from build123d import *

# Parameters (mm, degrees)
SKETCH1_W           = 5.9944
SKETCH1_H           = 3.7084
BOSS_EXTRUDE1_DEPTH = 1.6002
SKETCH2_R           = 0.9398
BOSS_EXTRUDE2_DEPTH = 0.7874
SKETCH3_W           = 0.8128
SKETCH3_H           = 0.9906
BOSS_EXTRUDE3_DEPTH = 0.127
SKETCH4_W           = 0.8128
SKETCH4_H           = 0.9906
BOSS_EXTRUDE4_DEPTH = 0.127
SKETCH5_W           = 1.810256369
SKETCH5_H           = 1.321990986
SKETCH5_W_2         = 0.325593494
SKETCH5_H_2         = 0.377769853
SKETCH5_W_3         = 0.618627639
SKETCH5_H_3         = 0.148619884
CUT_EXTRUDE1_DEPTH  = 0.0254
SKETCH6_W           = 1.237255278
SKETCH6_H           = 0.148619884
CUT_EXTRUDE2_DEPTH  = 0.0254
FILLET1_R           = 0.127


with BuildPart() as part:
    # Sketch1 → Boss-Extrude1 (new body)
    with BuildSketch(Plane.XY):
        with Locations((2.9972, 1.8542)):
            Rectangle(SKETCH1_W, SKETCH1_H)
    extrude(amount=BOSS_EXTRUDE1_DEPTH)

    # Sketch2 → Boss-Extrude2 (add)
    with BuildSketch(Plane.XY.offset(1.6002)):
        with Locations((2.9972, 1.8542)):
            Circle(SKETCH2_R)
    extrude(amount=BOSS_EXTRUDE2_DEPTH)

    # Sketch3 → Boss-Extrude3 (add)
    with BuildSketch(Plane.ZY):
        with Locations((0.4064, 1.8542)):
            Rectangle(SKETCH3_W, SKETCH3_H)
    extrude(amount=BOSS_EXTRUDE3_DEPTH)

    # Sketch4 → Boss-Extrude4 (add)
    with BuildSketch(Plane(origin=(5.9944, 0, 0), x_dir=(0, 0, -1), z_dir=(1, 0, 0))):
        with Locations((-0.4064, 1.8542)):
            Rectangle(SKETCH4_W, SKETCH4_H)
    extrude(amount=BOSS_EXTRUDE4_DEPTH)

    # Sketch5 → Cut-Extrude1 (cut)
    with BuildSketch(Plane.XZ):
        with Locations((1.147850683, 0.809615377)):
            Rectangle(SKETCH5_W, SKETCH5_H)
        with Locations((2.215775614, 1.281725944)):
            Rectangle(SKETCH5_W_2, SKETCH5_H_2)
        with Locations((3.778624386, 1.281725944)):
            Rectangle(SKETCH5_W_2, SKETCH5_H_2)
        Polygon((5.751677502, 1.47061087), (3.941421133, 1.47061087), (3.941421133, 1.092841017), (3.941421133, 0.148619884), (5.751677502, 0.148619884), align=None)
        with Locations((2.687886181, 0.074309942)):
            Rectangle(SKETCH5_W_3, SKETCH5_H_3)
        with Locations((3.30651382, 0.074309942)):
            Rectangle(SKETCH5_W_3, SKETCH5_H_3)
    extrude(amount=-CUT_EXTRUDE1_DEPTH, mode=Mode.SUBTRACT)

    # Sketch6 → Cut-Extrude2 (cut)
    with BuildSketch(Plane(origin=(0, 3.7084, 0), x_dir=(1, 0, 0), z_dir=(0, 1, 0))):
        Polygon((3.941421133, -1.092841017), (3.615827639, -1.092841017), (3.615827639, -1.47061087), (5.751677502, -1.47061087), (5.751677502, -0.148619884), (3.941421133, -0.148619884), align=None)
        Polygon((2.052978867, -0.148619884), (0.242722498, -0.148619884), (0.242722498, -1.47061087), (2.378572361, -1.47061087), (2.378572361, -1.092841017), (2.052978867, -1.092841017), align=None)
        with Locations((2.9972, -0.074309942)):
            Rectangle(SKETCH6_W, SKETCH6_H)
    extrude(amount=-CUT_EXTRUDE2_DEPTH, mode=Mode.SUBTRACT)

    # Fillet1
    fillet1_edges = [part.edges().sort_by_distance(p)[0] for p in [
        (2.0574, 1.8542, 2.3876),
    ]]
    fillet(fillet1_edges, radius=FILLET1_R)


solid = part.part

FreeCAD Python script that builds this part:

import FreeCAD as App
import Part
import Sketcher
from FreeCAD import Vector
Q = App.Units.Quantity


def edges_at(feature, points):
    """Names of the edges that pass closest to the given points."""
    edges = feature.Shape.Edges
    near = lambda p: min(range(len(edges)), key=lambda i: edges[i].distToShape(Part.Vertex(*p))[0])
    return sorted({f"Edge{near(p) + 1}" for p in points})

doc = App.newDocument("Part")
params = doc.addObject("Spreadsheet::Sheet", "Params")
for row, (alias, value) in enumerate([
    ("sketch1_width", "0.236 in"),
    ("sketch1_height", "0.146 in"),
    ("pad1_length", "0.063 in"),
    ("sketch2_diameter", "0.074 in"),
    ("pad2_length", "0.031 in"),
    ("sketch3_width", "0.039 in"),
    ("sketch3_height", "0.032 in"),
    ("pad3_length", "0.005 in"),
    ("sketch4_width", "0.039 in"),
    ("sketch4_height", "0.032 in"),
    ("pad4_length", "0.005 in"),
    ("pocket1_length", "0.001 in"),
    ("pocket2_length", "0.001 in"),
    ("fillet_radius", "0.005 in"),
], start=1):
    params.set(f"A{row}", alias)
    params.set(f"B{row}", "=" + value)
    params.setAlias(f"B{row}", alias)

body = doc.addObject("PartDesign::Body", "Body")

# Sketch on XY plane
sketch1 = body.newObject("Sketcher::SketchObject", "Sketch")
sketch1.AttachmentSupport = (doc.getObject("XY_Plane"), [""])
sketch1.MapMode = "FlatFace"
sketch1.addGeometry(Part.LineSegment(Vector(0, 3.7084, 0), Vector(0, 0, 0)), False)
sketch1.addGeometry(Part.LineSegment(Vector(0, 0, 0), Vector(5.9944, 0, 0)), False)
sketch1.addGeometry(Part.LineSegment(Vector(5.9944, 0, 0), Vector(5.9944, 3.7084, 0)), False)
sketch1.addGeometry(Part.LineSegment(Vector(5.9944, 3.7084, 0), Vector(0, 3.7084, 0)), False)
sketch1.addConstraint(Sketcher.Constraint("Coincident", 0, 2, 1, 1))
sketch1.addConstraint(Sketcher.Constraint("Coincident", 1, 2, 2, 1))
sketch1.addConstraint(Sketcher.Constraint("Coincident", 2, 2, 3, 1))
sketch1.addConstraint(Sketcher.Constraint("Coincident", 3, 2, 0, 1))
sketch1.addConstraint(Sketcher.Constraint("Vertical", 0))
sketch1.addConstraint(Sketcher.Constraint("Horizontal", 1))
sketch1.addConstraint(Sketcher.Constraint("Vertical", 2))
sketch1.addConstraint(Sketcher.Constraint("Horizontal", 3))
sketch1.addConstraint(Sketcher.Constraint("Coincident", 0, 2, -1, 1))
sketch1.addConstraint(Sketcher.Constraint("DistanceX", 1, 1, 1, 2, Q("0.236 in")))
sketch1.addConstraint(Sketcher.Constraint("DistanceY", 0, 2, 0, 1, Q("0.146 in")))
sketch1.setExpression("Constraints[9]", "Params.sketch1_width")
sketch1.setExpression("Constraints[10]", "Params.sketch1_height")
pad1 = body.newObject("PartDesign::Pad", "Pad")
pad1.Profile = sketch1
pad1.setExpression("Length", "Params.pad1_length")

# Sketch on XY plane
sketch2 = body.newObject("Sketcher::SketchObject", "Sketch001")
sketch2.AttachmentSupport = (doc.getObject("XY_Plane"), [""])
sketch2.MapMode = "FlatFace"
sketch2.AttachmentOffset = App.Placement(Vector(0, 0, 0.063 * 25.4), App.Rotation())
sketch2.addGeometry(Part.Circle(Vector(2.9972, 1.8542, 0), Vector(0, 0, 1), 0.9398), False)
sketch2.addConstraint(Sketcher.Constraint("Diameter", 0, Q("0.074 in")))
sketch2.addConstraint(Sketcher.Constraint("DistanceX", -1, 1, 0, 3, Q("0.118 in")))
sketch2.addConstraint(Sketcher.Constraint("DistanceY", -1, 1, 0, 3, Q("0.073 in")))
sketch2.setExpression("Constraints[0]", "Params.sketch2_diameter")
pad2 = body.newObject("PartDesign::Pad", "Pad001")
pad2.Profile = sketch2
pad2.setExpression("Length", "Params.pad2_length")

# Sketch on YZ plane
sketch3 = body.newObject("Sketcher::SketchObject", "Sketch002")
sketch3.AttachmentSupport = (doc.getObject("YZ_Plane"), [""])
sketch3.MapMode = "FlatFace"
sketch3.addGeometry(Part.LineSegment(Vector(2.3495, 0, 0), Vector(1.3589, 0, 0)), False)
sketch3.addGeometry(Part.LineSegment(Vector(1.3589, 0, 0), Vector(1.3589, 0.8128, 0)), False)
sketch3.addGeometry(Part.LineSegment(Vector(1.3589, 0.8128, 0), Vector(2.3495, 0.8128, 0)), False)
sketch3.addGeometry(Part.LineSegment(Vector(2.3495, 0.8128, 0), Vector(2.3495, 0, 0)), False)
sketch3.addConstraint(Sketcher.Constraint("Coincident", 0, 2, 1, 1))
sketch3.addConstraint(Sketcher.Constraint("Coincident", 1, 2, 2, 1))
sketch3.addConstraint(Sketcher.Constraint("Coincident", 2, 2, 3, 1))
sketch3.addConstraint(Sketcher.Constraint("Coincident", 3, 2, 0, 1))
sketch3.addConstraint(Sketcher.Constraint("Horizontal", 0))
sketch3.addConstraint(Sketcher.Constraint("Vertical", 1))
sketch3.addConstraint(Sketcher.Constraint("Horizontal", 2))
sketch3.addConstraint(Sketcher.Constraint("Vertical", 3))
sketch3.addConstraint(Sketcher.Constraint("PointOnObject", 0, 2, -1))
sketch3.addConstraint(Sketcher.Constraint("DistanceX", 0, 2, 0, 1, Q("0.039 in")))
sketch3.addConstraint(Sketcher.Constraint("DistanceY", 1, 1, 1, 2, Q("0.032 in")))
sketch3.addConstraint(Sketcher.Constraint("DistanceX", -1, 1, 0, 2, Q("0.0535 in")))
sketch3.setExpression("Constraints[9]", "Params.sketch3_width")
sketch3.setExpression("Constraints[10]", "Params.sketch3_height")
pad3 = body.newObject("PartDesign::Pad", "Pad002")
pad3.Profile = sketch3
pad3.setExpression("Length", "Params.pad3_length")
pad3.Reversed = True

# Sketch on YZ plane
sketch4 = body.newObject("Sketcher::SketchObject", "Sketch003")
sketch4.AttachmentSupport = (doc.getObject("YZ_Plane"), [""])
sketch4.MapMode = "FlatFace"
sketch4.AttachmentOffset = App.Placement(Vector(0, 0, 0.236 * 25.4), App.Rotation())
sketch4.addGeometry(Part.LineSegment(Vector(2.3495, 0.8128, 0), Vector(1.3589, 0.8128, 0)), False)
sketch4.addGeometry(Part.LineSegment(Vector(1.3589, 0.8128, 0), Vector(1.3589, 0, 0)), False)
sketch4.addGeometry(Part.LineSegment(Vector(1.3589, 0, 0), Vector(2.3495, 0, 0)), False)
sketch4.addGeometry(Part.LineSegment(Vector(2.3495, 0, 0), Vector(2.3495, 0.8128, 0)), False)
sketch4.addConstraint(Sketcher.Constraint("Coincident", 0, 2, 1, 1))
sketch4.addConstraint(Sketcher.Constraint("Coincident", 1, 2, 2, 1))
sketch4.addConstraint(Sketcher.Constraint("Coincident", 2, 2, 3, 1))
sketch4.addConstraint(Sketcher.Constraint("Coincident", 3, 2, 0, 1))
sketch4.addConstraint(Sketcher.Constraint("Horizontal", 0))
sketch4.addConstraint(Sketcher.Constraint("Vertical", 1))
sketch4.addConstraint(Sketcher.Constraint("Horizontal", 2))
sketch4.addConstraint(Sketcher.Constraint("Vertical", 3))
sketch4.addConstraint(Sketcher.Constraint("PointOnObject", 1, 2, -1))
sketch4.addConstraint(Sketcher.Constraint("DistanceX", 0, 2, 0, 1, Q("0.039 in")))
sketch4.addConstraint(Sketcher.Constraint("DistanceY", 1, 2, 1, 1, Q("0.032 in")))
sketch4.addConstraint(Sketcher.Constraint("DistanceX", -1, 1, 0, 2, Q("0.0535 in")))
sketch4.setExpression("Constraints[9]", "Params.sketch4_width")
sketch4.setExpression("Constraints[10]", "Params.sketch4_height")
pad4 = body.newObject("PartDesign::Pad", "Pad003")
pad4.Profile = sketch4
pad4.setExpression("Length", "Params.pad4_length")

# Sketch on XZ plane
sketch5 = body.newObject("Sketcher::SketchObject", "Sketch004")
sketch5.AttachmentSupport = (doc.getObject("XZ_Plane"), [""])
sketch5.MapMode = "FlatFace"
sketch5.addGeometry(Part.LineSegment(Vector(0.242722, 1.470611, 0), Vector(0.242722, 0.14862, 0)), False)
sketch5.addGeometry(Part.LineSegment(Vector(0.242722, 0.14862, 0), Vector(2.052979, 0.14862, 0)), False)
sketch5.addGeometry(Part.LineSegment(Vector(2.052979, 0.14862, 0), Vector(2.052979, 1.092841, 0)), False)
sketch5.addGeometry(Part.LineSegment(Vector(2.052979, 1.092841, 0), Vector(2.378572, 1.092841, 0)), False)
sketch5.addGeometry(Part.LineSegment(Vector(2.378572, 1.092841, 0), Vector(2.378572, 1.470611, 0)), False)
sketch5.addGeometry(Part.LineSegment(Vector(2.378572, 1.470611, 0), Vector(2.052979, 1.470611, 0)), False)
sketch5.addGeometry(Part.LineSegment(Vector(2.052979, 1.470611, 0), Vector(0.242722, 1.470611, 0)), False)
sketch5.addGeometry(Part.LineSegment(Vector(3.615828, 1.470611, 0), Vector(3.615828, 1.092841, 0)), False)
sketch5.addGeometry(Part.LineSegment(Vector(3.615828, 1.092841, 0), Vector(3.941421, 1.092841, 0)), False)
sketch5.addGeometry(Part.LineSegment(Vector(3.941421, 1.092841, 0), Vector(3.941421, 0.14862, 0)), False)
sketch5.addGeometry(Part.LineSegment(Vector(3.941421, 0.14862, 0), Vector(5.751678, 0.14862, 0)), False)
sketch5.addGeometry(Part.LineSegment(Vector(5.751678, 0.14862, 0), Vector(5.751678, 1.470611, 0)), False)
sketch5.addGeometry(Part.LineSegment(Vector(5.751678, 1.470611, 0), Vector(3.941421, 1.470611, 0)), False)
sketch5.addGeometry(Part.LineSegment(Vector(3.941421, 1.470611, 0), Vector(3.615828, 1.470611, 0)), False)
sketch5.addGeometry(Part.LineSegment(Vector(2.378572, 0.14862, 0), Vector(2.378572, 0, 0)), False)
sketch5.addGeometry(Part.LineSegment(Vector(2.378572, 0, 0), Vector(3.615828, 0, 0)), False)
sketch5.addGeometry(Part.LineSegment(Vector(3.615828, 0, 0), Vector(3.615828, 0.14862, 0)), False)
sketch5.addGeometry(Part.LineSegment(Vector(3.615828, 0.14862, 0), Vector(2.378572, 0.14862, 0)), False)
sketch5.addConstraint(Sketcher.Constraint("Coincident", 0, 2, 1, 1))
sketch5.addConstraint(Sketcher.Constraint("Coincident", 1, 2, 2, 1))
sketch5.addConstraint(Sketcher.Constraint("Coincident", 2, 2, 3, 1))
sketch5.addConstraint(Sketcher.Constraint("Coincident", 3, 2, 4, 1))
sketch5.addConstraint(Sketcher.Constraint("Coincident", 4, 2, 5, 1))
sketch5.addConstraint(Sketcher.Constraint("Coincident", 5, 2, 6, 1))
sketch5.addConstraint(Sketcher.Constraint("Coincident", 6, 2, 0, 1))
sketch5.addConstraint(Sketcher.Constraint("Coincident", 7, 2, 8, 1))
sketch5.addConstraint(Sketcher.Constraint("Coincident", 8, 2, 9, 1))
sketch5.addConstraint(Sketcher.Constraint("Coincident", 9, 2, 10, 1))
sketch5.addConstraint(Sketcher.Constraint("Coincident", 10, 2, 11, 1))
sketch5.addConstraint(Sketcher.Constraint("Coincident", 11, 2, 12, 1))
sketch5.addConstraint(Sketcher.Constraint("Coincident", 12, 2, 13, 1))
sketch5.addConstraint(Sketcher.Constraint("Coincident", 13, 2, 7, 1))
sketch5.addConstraint(Sketcher.Constraint("Coincident", 14, 2, 15, 1))
sketch5.addConstraint(Sketcher.Constraint("Coincident", 15, 2, 16, 1))
sketch5.addConstraint(Sketcher.Constraint("Coincident", 16, 2, 17, 1))
sketch5.addConstraint(Sketcher.Constraint("Coincident", 17, 2, 14, 1))
sketch5.addConstraint(Sketcher.Constraint("Vertical", 0))
sketch5.addConstraint(Sketcher.Constraint("Horizontal", 1))
sketch5.addConstraint(Sketcher.Constraint("Vertical", 2))
sketch5.addConstraint(Sketcher.Constraint("Horizontal", 3))
sketch5.addConstraint(Sketcher.Constraint("Vertical", 4))
sketch5.addConstraint(Sketcher.Constraint("Horizontal", 5))
sketch5.addConstraint(Sketcher.Constraint("Horizontal", 6))
sketch5.addConstraint(Sketcher.Constraint("Vertical", 7))
sketch5.addConstraint(Sketcher.Constraint("Horizontal", 8))
sketch5.addConstraint(Sketcher.Constraint("Vertical", 9))
sketch5.addConstraint(Sketcher.Constraint("Horizontal", 10))
sketch5.addConstraint(Sketcher.Constraint("Vertical", 11))
sketch5.addConstraint(Sketcher.Constraint("Horizontal", 12))
sketch5.addConstraint(Sketcher.Constraint("Horizontal", 13))
sketch5.addConstraint(Sketcher.Constraint("Vertical", 14))
sketch5.addConstraint(Sketcher.Constraint("Horizontal", 15))
sketch5.addConstraint(Sketcher.Constraint("Vertical", 16))
sketch5.addConstraint(Sketcher.Constraint("Horizontal", 17))
sketch5.addConstraint(Sketcher.Constraint("PointOnObject", 14, 2, -1))
sketch5.addConstraint(Sketcher.Constraint("Horizontal", 3, 2, 7, 2))
sketch5.addConstraint(Sketcher.Constraint("Horizontal", 1, 2, 9, 2))
sketch5.addConstraint(Sketcher.Constraint("Horizontal", 6, 2, 11, 2))
sketch5.addConstraint(Sketcher.Constraint("Horizontal", 10, 2, 16, 2))
sketch5.addConstraint(Sketcher.Constraint("Vertical", 2, 2, 5, 2))
sketch5.addConstraint(Sketcher.Constraint("Vertical", 9, 2, 12, 2))
sketch5.addConstraint(Sketcher.Constraint("Vertical", 4, 2, 14, 2))
sketch5.addConstraint(Sketcher.Constraint("Vertical", 13, 2, 15, 2))
sketch5.addConstraint(Sketcher.Constraint("Equal", 5, 8))
sketch5.addConstraint(Sketcher.Constraint("Equal", 6, 10))
sketch5.addConstraint(Sketcher.Constraint("DistanceY", 0, 2, 0, 1, Q("1.321991 mm")))
sketch5.addConstraint(Sketcher.Constraint("DistanceY", 2, 1, 2, 2, Q("0.944221 mm")))
sketch5.addConstraint(Sketcher.Constraint("DistanceY", 14, 2, 14, 1, Q("0.14862 mm")))
sketch5.addConstraint(Sketcher.Constraint("DistanceX", 1, 1, 1, 2, Q("1.810256 mm")))
sketch5.addConstraint(Sketcher.Constraint("DistanceX", 3, 1, 3, 2, Q("0.325593 mm")))
sketch5.addConstraint(Sketcher.Constraint("DistanceX", 15, 1, 15, 2, Q("1.237255 mm")))
sketch5.addConstraint(Sketcher.Constraint("DistanceX", -1, 1, 1, 2, Q("2.052979 mm")))
pocket1 = body.newObject("PartDesign::Pocket", "Pocket")
pocket1.Profile = sketch5
pocket1.setExpression("Length", "Params.pocket1_length")

# Sketch on XZ plane
sketch6 = body.newObject("Sketcher::SketchObject", "Sketch005")
sketch6.AttachmentSupport = (doc.getObject("XZ_Plane"), [""])
sketch6.MapMode = "FlatFace"
sketch6.AttachmentOffset = App.Placement(Vector(0, 0, -0.146 * 25.4), App.Rotation())
sketch6.addGeometry(Part.LineSegment(Vector(3.941421, 1.092841, 0), Vector(3.615828, 1.092841, 0)), False)
sketch6.addGeometry(Part.LineSegment(Vector(3.615828, 1.092841, 0), Vector(3.615828, 1.470611, 0)), False)
sketch6.addGeometry(Part.LineSegment(Vector(3.615828, 1.470611, 0), Vector(5.751678, 1.470611, 0)), False)
sketch6.addGeometry(Part.LineSegment(Vector(5.751678, 1.470611, 0), Vector(5.751678, 0.14862, 0)), False)
sketch6.addGeometry(Part.LineSegment(Vector(5.751678, 0.14862, 0), Vector(3.941421, 0.14862, 0)), False)
sketch6.addGeometry(Part.LineSegment(Vector(3.941421, 0.14862, 0), Vector(3.941421, 1.092841, 0)), False)
sketch6.addGeometry(Part.LineSegment(Vector(2.052979, 0.14862, 0), Vector(0.242722, 0.14862, 0)), False)
sketch6.addGeometry(Part.LineSegment(Vector(0.242722, 0.14862, 0), Vector(0.242722, 1.470611, 0)), False)
sketch6.addGeometry(Part.LineSegment(Vector(0.242722, 1.470611, 0), Vector(2.378572, 1.470611, 0)), False)
sketch6.addGeometry(Part.LineSegment(Vector(2.378572, 1.470611, 0), Vector(2.378572, 1.092841, 0)), False)
sketch6.addGeometry(Part.LineSegment(Vector(2.378572, 1.092841, 0), Vector(2.052979, 1.092841, 0)), False)
sketch6.addGeometry(Part.LineSegment(Vector(2.052979, 1.092841, 0), Vector(2.052979, 0.14862, 0)), False)
sketch6.addGeometry(Part.LineSegment(Vector(2.378572, 0, 0), Vector(2.378572, 0.14862, 0)), False)
sketch6.addGeometry(Part.LineSegment(Vector(2.378572, 0.14862, 0), Vector(3.615828, 0.14862, 0)), False)
sketch6.addGeometry(Part.LineSegment(Vector(3.615828, 0.14862, 0), Vector(3.615828, 0, 0)), False)
sketch6.addGeometry(Part.LineSegment(Vector(3.615828, 0, 0), Vector(2.378572, 0, 0)), False)
sketch6.addConstraint(Sketcher.Constraint("Coincident", 0, 2, 1, 1))
sketch6.addConstraint(Sketcher.Constraint("Coincident", 1, 2, 2, 1))
sketch6.addConstraint(Sketcher.Constraint("Coincident", 2, 2, 3, 1))
sketch6.addConstraint(Sketcher.Constraint("Coincident", 3, 2, 4, 1))
sketch6.addConstraint(Sketcher.Constraint("Coincident", 4, 2, 5, 1))
sketch6.addConstraint(Sketcher.Constraint("Coincident", 5, 2, 0, 1))
sketch6.addConstraint(Sketcher.Constraint("Coincident", 6, 2, 7, 1))
sketch6.addConstraint(Sketcher.Constraint("Coincident", 7, 2, 8, 1))
sketch6.addConstraint(Sketcher.Constraint("Coincident", 8, 2, 9, 1))
sketch6.addConstraint(Sketcher.Constraint("Coincident", 9, 2, 10, 1))
sketch6.addConstraint(Sketcher.Constraint("Coincident", 10, 2, 11, 1))
sketch6.addConstraint(Sketcher.Constraint("Coincident", 11, 2, 6, 1))
sketch6.addConstraint(Sketcher.Constraint("Coincident", 12, 2, 13, 1))
sketch6.addConstraint(Sketcher.Constraint("Coincident", 13, 2, 14, 1))
sketch6.addConstraint(Sketcher.Constraint("Coincident", 14, 2, 15, 1))
sketch6.addConstraint(Sketcher.Constraint("Coincident", 15, 2, 12, 1))
sketch6.addConstraint(Sketcher.Constraint("Horizontal", 0))
sketch6.addConstraint(Sketcher.Constraint("Vertical", 1))
sketch6.addConstraint(Sketcher.Constraint("Horizontal", 2))
sketch6.addConstraint(Sketcher.Constraint("Vertical", 3))
sketch6.addConstraint(Sketcher.Constraint("Horizontal", 4))
sketch6.addConstraint(Sketcher.Constraint("Vertical", 5))
sketch6.addConstraint(Sketcher.Constraint("Horizontal", 6))
sketch6.addConstraint(Sketcher.Constraint("Vertical", 7))
sketch6.addConstraint(Sketcher.Constraint("Horizontal", 8))
sketch6.addConstraint(Sketcher.Constraint("Vertical", 9))
sketch6.addConstraint(Sketcher.Constraint("Horizontal", 10))
sketch6.addConstraint(Sketcher.Constraint("Vertical", 11))
sketch6.addConstraint(Sketcher.Constraint("Vertical", 12))
sketch6.addConstraint(Sketcher.Constraint("Horizontal", 13))
sketch6.addConstraint(Sketcher.Constraint("Vertical", 14))
sketch6.addConstraint(Sketcher.Constraint("Horizontal", 15))
sketch6.addConstraint(Sketcher.Constraint("PointOnObject", 14, 2, -1))
sketch6.addConstraint(Sketcher.Constraint("Horizontal", 4, 2, 6, 2))
sketch6.addConstraint(Sketcher.Constraint("Horizontal", 2, 2, 7, 2))
sketch6.addConstraint(Sketcher.Constraint("Horizontal", 5, 2, 9, 2))
sketch6.addConstraint(Sketcher.Constraint("Horizontal", 11, 2, 12, 2))
sketch6.addConstraint(Sketcher.Constraint("Vertical", 9, 2, 12, 2))
sketch6.addConstraint(Sketcher.Constraint("Vertical", 1, 2, 13, 2))
sketch6.addConstraint(Sketcher.Constraint("Equal", 4, 6))
sketch6.addConstraint(Sketcher.Constraint("Equal", 2, 8))
sketch6.addConstraint(Sketcher.Constraint("DistanceX", 2, 1, 2, 2, Q("2.13585 mm")))
sketch6.addConstraint(Sketcher.Constraint("DistanceY", 1, 1, 1, 2, Q("0.37777 mm")))
sketch6.addConstraint(Sketcher.Constraint("DistanceY", 3, 2, 3, 1, Q("1.321991 mm")))
sketch6.addConstraint(Sketcher.Constraint("DistanceY", 12, 1, 12, 2, Q("0.14862 mm")))
sketch6.addConstraint(Sketcher.Constraint("DistanceX", 6, 2, 4, 2, Q("3.698699 mm")))
sketch6.addConstraint(Sketcher.Constraint("DistanceX", 0, 2, 0, 1, Q("0.325593 mm")))
sketch6.addConstraint(Sketcher.Constraint("DistanceX", -1, 1, 4, 2, Q("3.941421 mm")))
pocket2 = body.newObject("PartDesign::Pocket", "Pocket001")
pocket2.Profile = sketch6
pocket2.setExpression("Length", "Params.pocket2_length")
pocket2.Reversed = True
doc.recompute()

fillet = body.newObject("PartDesign::Fillet", "Fillet")
fillet.Base = (pocket2, edges_at(pocket2, [(2.057, 1.854, 2.388)]))
fillet.setExpression("Radius", "Params.fillet_radius")

doc.recompute()
